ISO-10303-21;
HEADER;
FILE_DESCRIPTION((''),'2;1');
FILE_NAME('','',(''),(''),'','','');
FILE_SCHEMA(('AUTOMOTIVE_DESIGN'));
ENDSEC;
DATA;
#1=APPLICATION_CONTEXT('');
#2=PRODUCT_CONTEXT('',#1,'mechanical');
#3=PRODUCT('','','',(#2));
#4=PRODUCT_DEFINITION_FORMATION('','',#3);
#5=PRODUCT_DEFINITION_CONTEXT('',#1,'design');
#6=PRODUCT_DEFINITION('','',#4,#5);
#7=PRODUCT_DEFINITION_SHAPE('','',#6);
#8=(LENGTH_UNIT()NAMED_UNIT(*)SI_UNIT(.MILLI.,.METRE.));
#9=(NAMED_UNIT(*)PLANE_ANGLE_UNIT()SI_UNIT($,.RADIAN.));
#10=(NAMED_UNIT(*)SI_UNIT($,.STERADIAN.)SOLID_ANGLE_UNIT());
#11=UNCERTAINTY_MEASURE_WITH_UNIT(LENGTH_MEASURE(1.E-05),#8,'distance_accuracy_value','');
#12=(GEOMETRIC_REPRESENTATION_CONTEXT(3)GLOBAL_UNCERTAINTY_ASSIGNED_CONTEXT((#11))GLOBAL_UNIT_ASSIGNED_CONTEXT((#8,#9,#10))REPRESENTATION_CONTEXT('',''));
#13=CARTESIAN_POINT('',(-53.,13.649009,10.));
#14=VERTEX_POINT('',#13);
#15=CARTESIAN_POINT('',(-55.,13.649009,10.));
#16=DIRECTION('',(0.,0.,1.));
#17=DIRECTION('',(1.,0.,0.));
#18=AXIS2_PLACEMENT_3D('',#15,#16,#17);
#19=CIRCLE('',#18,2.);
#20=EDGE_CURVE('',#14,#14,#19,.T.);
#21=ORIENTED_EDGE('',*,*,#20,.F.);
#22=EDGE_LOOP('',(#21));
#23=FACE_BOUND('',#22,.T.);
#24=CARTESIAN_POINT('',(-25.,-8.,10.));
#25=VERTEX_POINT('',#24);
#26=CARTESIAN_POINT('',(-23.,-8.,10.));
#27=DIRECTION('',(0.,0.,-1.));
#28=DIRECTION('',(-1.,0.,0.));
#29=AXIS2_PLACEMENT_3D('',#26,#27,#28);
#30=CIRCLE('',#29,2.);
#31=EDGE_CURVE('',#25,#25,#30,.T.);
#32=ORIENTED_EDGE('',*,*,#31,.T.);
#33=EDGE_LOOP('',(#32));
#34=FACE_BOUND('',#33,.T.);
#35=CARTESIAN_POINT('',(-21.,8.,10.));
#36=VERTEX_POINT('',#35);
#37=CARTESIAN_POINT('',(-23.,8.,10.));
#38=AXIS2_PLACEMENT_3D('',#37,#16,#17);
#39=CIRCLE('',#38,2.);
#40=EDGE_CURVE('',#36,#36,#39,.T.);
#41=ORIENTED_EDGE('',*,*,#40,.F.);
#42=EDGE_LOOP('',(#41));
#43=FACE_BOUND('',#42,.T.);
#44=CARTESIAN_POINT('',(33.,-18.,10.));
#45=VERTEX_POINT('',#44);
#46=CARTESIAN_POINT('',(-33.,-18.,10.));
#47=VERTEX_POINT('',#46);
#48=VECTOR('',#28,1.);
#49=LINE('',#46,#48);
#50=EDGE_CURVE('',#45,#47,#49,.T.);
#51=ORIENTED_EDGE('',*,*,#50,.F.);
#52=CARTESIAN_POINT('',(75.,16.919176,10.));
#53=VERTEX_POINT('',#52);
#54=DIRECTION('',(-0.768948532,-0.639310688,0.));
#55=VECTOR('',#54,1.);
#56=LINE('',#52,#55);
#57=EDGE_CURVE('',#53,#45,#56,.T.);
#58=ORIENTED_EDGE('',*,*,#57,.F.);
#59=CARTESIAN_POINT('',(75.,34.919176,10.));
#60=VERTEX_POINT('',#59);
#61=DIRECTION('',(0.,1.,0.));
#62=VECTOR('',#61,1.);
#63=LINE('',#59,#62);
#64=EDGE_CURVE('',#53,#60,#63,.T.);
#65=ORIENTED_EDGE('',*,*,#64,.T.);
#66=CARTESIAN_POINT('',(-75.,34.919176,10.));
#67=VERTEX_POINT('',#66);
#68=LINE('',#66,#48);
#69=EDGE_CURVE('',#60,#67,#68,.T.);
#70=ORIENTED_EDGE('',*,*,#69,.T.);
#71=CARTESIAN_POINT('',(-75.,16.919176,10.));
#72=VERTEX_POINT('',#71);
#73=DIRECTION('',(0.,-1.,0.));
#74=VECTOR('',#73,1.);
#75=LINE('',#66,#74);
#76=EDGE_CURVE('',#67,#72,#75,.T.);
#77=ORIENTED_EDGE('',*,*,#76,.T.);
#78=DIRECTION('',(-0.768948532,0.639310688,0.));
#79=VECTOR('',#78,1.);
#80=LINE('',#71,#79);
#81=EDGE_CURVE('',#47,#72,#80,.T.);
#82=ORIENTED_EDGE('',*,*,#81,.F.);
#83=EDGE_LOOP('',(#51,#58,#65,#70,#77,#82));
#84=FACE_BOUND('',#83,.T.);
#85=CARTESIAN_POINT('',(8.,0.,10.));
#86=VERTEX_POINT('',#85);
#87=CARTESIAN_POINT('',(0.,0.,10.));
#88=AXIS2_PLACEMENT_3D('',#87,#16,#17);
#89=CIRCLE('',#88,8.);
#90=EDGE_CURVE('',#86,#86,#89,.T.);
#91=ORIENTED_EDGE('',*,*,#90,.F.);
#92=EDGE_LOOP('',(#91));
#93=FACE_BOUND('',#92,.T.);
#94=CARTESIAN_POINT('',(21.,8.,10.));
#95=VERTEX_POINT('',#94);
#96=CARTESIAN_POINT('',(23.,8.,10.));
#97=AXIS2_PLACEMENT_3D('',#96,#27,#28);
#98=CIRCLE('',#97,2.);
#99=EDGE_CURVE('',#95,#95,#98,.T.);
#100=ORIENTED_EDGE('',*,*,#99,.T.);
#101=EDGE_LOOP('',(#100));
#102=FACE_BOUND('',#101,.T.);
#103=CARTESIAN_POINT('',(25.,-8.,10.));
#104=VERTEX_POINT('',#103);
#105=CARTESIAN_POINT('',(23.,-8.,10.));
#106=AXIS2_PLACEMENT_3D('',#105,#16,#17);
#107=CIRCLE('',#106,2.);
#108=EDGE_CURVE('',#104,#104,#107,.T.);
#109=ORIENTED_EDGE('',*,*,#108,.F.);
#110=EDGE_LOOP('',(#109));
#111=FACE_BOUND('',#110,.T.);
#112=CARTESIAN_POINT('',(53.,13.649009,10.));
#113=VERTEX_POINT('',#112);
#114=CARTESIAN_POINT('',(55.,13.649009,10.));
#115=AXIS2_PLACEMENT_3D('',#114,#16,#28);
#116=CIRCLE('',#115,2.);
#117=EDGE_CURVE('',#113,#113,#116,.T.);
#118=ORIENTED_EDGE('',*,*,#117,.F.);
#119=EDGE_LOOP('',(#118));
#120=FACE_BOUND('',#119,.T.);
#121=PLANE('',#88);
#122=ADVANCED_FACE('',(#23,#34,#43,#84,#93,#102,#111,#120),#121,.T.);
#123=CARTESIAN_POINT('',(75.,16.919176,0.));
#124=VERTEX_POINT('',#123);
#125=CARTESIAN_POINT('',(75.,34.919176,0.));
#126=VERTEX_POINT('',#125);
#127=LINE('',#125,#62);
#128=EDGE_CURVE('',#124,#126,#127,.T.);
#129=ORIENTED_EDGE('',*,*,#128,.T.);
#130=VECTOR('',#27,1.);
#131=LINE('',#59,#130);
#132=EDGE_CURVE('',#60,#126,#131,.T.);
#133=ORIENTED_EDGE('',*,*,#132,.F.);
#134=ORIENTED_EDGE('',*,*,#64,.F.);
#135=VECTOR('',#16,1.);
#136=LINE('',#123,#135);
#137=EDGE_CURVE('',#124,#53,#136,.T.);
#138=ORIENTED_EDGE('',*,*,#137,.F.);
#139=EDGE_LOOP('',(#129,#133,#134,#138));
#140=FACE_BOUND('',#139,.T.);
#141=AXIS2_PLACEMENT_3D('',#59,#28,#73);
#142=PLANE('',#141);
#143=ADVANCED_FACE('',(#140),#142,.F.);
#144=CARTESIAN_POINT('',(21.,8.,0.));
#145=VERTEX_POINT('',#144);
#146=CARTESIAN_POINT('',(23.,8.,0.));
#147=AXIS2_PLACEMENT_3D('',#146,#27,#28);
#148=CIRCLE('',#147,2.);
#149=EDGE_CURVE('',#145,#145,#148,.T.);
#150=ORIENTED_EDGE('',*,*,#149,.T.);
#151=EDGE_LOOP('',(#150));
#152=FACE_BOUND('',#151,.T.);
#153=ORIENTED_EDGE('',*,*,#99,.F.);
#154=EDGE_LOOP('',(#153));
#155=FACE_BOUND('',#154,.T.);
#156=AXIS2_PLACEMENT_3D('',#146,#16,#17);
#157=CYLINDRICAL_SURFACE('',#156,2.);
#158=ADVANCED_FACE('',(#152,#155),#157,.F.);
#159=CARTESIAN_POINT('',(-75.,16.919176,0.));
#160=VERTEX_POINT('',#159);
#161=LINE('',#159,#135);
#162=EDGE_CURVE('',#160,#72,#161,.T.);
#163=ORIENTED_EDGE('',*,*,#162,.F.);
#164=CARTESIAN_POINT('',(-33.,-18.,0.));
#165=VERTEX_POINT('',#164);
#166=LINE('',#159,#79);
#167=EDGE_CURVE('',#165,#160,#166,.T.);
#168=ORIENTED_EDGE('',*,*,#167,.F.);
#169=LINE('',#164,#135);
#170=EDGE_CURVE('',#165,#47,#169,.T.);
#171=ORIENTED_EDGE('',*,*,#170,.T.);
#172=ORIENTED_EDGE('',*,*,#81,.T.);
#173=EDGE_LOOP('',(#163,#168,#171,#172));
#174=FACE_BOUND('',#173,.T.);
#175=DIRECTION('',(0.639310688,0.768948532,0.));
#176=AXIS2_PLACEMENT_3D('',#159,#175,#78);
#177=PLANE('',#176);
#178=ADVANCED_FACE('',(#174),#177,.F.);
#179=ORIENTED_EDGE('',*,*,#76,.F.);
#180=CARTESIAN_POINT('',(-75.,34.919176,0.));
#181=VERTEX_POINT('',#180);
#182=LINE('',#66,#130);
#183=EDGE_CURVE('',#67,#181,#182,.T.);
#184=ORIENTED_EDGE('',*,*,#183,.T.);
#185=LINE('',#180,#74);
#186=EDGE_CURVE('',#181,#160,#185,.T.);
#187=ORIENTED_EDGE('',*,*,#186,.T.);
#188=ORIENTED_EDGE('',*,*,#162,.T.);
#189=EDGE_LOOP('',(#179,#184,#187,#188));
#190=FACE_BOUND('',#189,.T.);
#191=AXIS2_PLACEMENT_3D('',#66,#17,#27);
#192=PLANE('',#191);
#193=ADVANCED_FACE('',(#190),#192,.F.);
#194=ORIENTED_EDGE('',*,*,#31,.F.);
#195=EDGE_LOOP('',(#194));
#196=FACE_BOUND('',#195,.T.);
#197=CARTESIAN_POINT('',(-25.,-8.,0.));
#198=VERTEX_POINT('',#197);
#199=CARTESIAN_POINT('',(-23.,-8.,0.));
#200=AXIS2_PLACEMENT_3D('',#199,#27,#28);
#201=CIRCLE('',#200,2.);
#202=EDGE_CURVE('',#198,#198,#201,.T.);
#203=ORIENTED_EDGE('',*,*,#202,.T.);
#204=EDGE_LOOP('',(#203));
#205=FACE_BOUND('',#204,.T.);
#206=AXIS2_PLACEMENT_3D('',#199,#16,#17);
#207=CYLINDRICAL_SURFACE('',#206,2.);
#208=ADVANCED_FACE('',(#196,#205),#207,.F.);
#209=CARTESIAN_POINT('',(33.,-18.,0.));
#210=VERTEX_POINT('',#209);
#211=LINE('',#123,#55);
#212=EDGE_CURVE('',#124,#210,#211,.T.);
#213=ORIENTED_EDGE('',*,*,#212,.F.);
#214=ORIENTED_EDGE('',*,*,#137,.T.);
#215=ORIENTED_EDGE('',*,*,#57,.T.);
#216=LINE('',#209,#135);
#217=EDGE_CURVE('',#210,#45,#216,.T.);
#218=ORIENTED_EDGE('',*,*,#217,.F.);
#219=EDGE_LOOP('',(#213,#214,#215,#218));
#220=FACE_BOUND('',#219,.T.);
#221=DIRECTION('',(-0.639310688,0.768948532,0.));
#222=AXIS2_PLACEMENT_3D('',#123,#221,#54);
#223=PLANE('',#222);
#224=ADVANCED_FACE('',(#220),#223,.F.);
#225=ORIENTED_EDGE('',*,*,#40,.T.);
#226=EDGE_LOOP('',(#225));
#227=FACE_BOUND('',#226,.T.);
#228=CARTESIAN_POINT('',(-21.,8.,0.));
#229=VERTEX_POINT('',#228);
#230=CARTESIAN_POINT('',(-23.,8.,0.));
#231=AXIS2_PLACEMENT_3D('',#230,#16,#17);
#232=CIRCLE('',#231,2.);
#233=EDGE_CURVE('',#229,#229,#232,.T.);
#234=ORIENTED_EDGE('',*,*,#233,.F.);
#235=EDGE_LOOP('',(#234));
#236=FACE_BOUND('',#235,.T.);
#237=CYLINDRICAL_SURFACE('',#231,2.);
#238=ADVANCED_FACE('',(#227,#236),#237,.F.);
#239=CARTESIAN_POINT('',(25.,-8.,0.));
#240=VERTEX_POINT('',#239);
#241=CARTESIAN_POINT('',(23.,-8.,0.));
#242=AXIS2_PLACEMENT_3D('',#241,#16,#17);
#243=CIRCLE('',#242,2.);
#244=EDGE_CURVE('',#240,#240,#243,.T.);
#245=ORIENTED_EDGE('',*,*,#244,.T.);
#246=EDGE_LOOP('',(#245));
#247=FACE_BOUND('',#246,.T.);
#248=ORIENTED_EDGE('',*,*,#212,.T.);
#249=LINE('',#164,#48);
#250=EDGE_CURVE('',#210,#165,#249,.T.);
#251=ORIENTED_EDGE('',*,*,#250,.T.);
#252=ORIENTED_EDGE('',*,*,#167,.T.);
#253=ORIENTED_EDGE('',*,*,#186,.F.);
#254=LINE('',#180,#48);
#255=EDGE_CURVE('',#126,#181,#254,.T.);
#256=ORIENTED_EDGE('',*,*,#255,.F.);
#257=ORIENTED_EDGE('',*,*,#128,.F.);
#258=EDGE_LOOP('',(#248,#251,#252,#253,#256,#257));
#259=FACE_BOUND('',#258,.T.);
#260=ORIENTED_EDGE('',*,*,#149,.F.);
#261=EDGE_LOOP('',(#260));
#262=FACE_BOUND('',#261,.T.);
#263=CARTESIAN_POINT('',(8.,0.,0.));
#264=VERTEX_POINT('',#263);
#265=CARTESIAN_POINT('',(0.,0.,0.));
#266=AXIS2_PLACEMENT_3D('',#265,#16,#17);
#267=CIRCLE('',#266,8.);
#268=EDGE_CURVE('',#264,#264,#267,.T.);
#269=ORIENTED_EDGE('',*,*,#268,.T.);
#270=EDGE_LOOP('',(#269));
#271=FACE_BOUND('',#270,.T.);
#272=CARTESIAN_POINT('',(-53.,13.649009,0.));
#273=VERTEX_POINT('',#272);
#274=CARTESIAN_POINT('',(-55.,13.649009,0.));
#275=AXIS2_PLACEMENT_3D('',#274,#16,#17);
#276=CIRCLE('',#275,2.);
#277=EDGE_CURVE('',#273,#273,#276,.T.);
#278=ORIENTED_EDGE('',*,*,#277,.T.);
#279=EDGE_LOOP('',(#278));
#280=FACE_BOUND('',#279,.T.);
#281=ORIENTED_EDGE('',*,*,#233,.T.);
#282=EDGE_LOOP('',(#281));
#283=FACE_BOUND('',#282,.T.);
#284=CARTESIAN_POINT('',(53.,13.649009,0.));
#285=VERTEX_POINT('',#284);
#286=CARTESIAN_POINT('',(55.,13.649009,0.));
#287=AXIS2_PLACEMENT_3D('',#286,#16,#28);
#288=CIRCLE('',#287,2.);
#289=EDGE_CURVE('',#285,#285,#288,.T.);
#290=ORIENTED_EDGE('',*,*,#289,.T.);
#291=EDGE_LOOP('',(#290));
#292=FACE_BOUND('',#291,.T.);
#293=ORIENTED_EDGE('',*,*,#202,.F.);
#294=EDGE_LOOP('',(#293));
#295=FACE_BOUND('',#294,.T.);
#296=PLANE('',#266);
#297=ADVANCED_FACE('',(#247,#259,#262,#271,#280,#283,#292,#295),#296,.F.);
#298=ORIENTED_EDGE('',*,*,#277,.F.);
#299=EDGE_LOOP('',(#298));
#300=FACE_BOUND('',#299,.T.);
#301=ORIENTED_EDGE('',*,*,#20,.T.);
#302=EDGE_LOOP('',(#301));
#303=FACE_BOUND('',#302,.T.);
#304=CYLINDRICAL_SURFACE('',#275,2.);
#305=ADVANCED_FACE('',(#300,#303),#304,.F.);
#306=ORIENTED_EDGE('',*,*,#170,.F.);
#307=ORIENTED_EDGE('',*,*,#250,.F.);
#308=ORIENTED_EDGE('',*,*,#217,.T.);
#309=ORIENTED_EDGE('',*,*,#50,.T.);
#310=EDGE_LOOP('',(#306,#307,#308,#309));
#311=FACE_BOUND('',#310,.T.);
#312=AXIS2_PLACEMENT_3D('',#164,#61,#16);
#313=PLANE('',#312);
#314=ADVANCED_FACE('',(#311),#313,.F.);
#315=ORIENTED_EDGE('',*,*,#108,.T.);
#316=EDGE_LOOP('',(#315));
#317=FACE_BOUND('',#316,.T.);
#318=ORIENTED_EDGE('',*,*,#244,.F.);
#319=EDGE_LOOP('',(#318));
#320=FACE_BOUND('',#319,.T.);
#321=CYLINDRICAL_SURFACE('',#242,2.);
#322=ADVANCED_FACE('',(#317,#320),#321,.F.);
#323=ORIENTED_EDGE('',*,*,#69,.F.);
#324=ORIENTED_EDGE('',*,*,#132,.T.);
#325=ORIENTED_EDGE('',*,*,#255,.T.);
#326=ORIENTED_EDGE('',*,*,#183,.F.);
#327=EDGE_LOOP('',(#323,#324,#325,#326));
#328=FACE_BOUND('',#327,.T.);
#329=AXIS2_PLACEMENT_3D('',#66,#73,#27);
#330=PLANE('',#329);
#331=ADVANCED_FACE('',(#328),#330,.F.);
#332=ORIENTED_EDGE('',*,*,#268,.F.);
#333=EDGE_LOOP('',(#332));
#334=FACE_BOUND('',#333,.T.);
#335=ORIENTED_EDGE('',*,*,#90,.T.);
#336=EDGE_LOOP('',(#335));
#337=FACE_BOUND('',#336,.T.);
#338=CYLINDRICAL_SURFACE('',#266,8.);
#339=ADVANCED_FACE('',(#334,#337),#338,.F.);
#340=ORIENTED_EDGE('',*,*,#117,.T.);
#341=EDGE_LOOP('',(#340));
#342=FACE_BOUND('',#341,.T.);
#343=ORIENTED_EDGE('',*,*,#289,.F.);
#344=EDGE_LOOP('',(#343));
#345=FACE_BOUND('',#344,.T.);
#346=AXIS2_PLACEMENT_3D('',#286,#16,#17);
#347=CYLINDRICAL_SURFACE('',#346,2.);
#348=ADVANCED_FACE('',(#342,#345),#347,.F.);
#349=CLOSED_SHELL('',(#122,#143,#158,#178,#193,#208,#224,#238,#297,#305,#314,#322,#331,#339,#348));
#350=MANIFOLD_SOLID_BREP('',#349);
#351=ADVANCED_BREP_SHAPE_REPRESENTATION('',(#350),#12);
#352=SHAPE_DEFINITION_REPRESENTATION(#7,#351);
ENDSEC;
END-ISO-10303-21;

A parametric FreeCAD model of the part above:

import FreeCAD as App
import Part
import Sketcher

V = App.Vector


def add_polygon(sketch, points):
    """Adds a closed chain of lines whose ends are joined by coincident constraints."""
    first, n = sketch.GeometryCount, len(points)
    for a, b in zip(points, points[1:] + points[:1]):
        sketch.addGeometry(Part.LineSegment(App.Vector(*a, 0), App.Vector(*b, 0)), False)
    for i in range(n):
        sketch.addConstraint(Sketcher.Constraint("Coincident", first + i, 2, first + (i + 1) % n, 1))

doc = App.newDocument("Part")
body = doc.addObject("PartDesign::Body", "Body")

sketch1 = body.newObject("Sketcher::SketchObject", "Sketch")
sketch1.AttachmentSupport = (doc.getObject("XY_Plane"), [""])
sketch1.MapMode = "FlatFace"
add_polygon(sketch1, [(-75, 35), (-75, -35), (75, -35), (75, 35)])
sketch1.addConstraint([
    Sketcher.Constraint("Vertical", 0),
    Sketcher.Constraint("Horizontal", 1),
    Sketcher.Constraint("Vertical", 2),
    Sketcher.Constraint("Horizontal", 3),
    Sketcher.Constraint("DistanceX", 1, 1, 1, 2, 150.0),
    Sketcher.Constraint("DistanceY", 0, 2, 0, 1, 70.0),
    Sketcher.Constraint("DistanceX", 0, 2, -1, 1, 75.0),
    Sketcher.Constraint("DistanceY", 0, 2, -1, 1, 35.080824),
])
pad1 = body.newObject("PartDesign::Pad", "Pad")
pad1.Profile = sketch1
pad1.Length = 10

sketch2 = body.newObject("Sketcher::SketchObject", "Sketch001")
sketch2.AttachmentSupport = (doc.getObject("XY_Plane"), [""])
sketch2.MapMode = "FlatFace"
sketch2.AttachmentOffset = App.Placement(V(0, 0, 10), App.Rotation())
sketch2.addGeometry(Part.Circle(V(0, 0, 0), V(0, 0, 1), 8), False)
sketch2.addConstraint([
    Sketcher.Constraint("Coincident", 0, 3, -1, 1),
    Sketcher.Constraint("Diameter", 0, 16.0),
])
pocket1 = body.newObject("PartDesign::Pocket", "Pocket")
pocket1.Profile = sketch2
pocket1.Type = "ThroughAll"

sketch3 = body.newObject("Sketcher::SketchObject", "Sketch002")
sketch3.AttachmentSupport = (doc.getObject("XY_Plane"), [""])
sketch3.MapMode = "FlatFace"
sketch3.AttachmentOffset = App.Placement(V(0, 0, 10), App.Rotation())
sketch3.addGeometry([
    Part.Circle(V(-23, 8, 0), V(0, 0, 1), 2),
    Part.Circle(V(-23, -8, 0), V(0, 0, 1), 2),
    Part.Circle(V(23, -8, 0), V(0, 0, 1), 2),
    Part.Circle(V(23, 8, 0), V(0, 0, 1), 2),
], False)
sketch3.addConstraint([
    Sketcher.Constraint("Equal", 0, 1),
    Sketcher.Constraint("Equal", 1, 2),
    Sketcher.Constraint("Equal", 2, 3),
    Sketcher.Constraint("Symmetric", 0, 3, 2, 3, -1, 1),
    Sketcher.Constraint("Symmetric", 1, 3, 3, 3, -1, 1),
    Sketcher.Constraint("Symmetric", 1, 3, 2, 3, -2),
    Sketcher.Constraint("Diameter", 0, 4.0),
    Sketcher.Constraint("DistanceX", 0, 3, -1, 1, 23.0),
    Sketcher.Constraint("DistanceY", -1, 1, 0, 3, 8.0),
])
pocket2 = body.newObject("PartDesign::Pocket", "Pocket001")
pocket2.Profile = sketch3
pocket2.Type = "ThroughAll"

sketch4 = body.newObject("Sketcher::SketchObject", "Sketch003")
sketch4.AttachmentSupport = (doc.getObject("XY_Plane"), [""])
sketch4.MapMode = "FlatFace"
sketch4.AttachmentOffset = App.Placement(V(0, 0, 10), App.Rotation())
sketch4.addGeometry([
    Part.Circle(V(-55, 13.6, 0), V(0, 0, 1), 2),
    Part.Circle(V(-65, -25.1, 0), V(0, 0, 1), 2),
    Part.Circle(V(65, -25.1, 0), V(0, 0, 1), 2),
    Part.Circle(V(55, 13.6, 0), V(0, 0, 1), 2),
], False)
sketch4.addConstraint([
    Sketcher.Constraint("Equal", 0, 1),
    Sketcher.Constraint("Equal", 1, 2),
    Sketcher.Constraint("Equal", 2, 3),
    Sketcher.Constraint("Symmetric", 1, 3, 2, 3, -2),
    Sketcher.Constraint("Symmetric", 0, 3, 3, 3, -2),
    Sketcher.Constraint("Diameter", 0, 4.0),
    Sketcher.Constraint("DistanceX", 0, 3, -1, 1, 55.0),
    Sketcher.Constraint("DistanceX", 1, 3, -1, 1, 65.0),
    Sketcher.Constraint("DistanceY", -1, 1, 0, 3, 13.649009),
    Sketcher.Constraint("DistanceY", 1, 3, -1, 1, 25.080824),
])
pocket3 = body.newObject("PartDesign::Pocket", "Pocket002")
pocket3.Profile = sketch4
pocket3.Type = "ThroughAll"

sketch5 = body.newObject("Sketcher::SketchObject", "Sketch004")
sketch5.AttachmentSupport = (doc.getObject("XY_Plane"), [""])
sketch5.MapMode = "FlatFace"
sketch5.AttachmentOffset = App.Placement(V(0, 0, 10), App.Rotation())
add_polygon(sketch5, [(-33, -18), (-75, 17), (-75, -35), (75, -35), (75, 17), (33, -18)])
sketch5.addConstraint([
    Sketcher.Constraint("Vertical", 1),
    Sketcher.Constraint("Horizontal", 2),
    Sketcher.Constraint("Vertical", 3),
    Sketcher.Constraint("Horizontal", 5),
    Sketcher.Constraint("Symmetric", 0, 2, 3, 2, -2),
    Sketcher.Constraint("Equal", 0, 4),
    Sketcher.Constraint("DistanceX", 2, 1, 2, 2, 150.0),
    Sketcher.Constraint("DistanceX", 5, 2, 5, 1, 66.0),
    Sketcher.Constraint("DistanceY", 1, 2, 1, 1, 52.0),
    Sketcher.Constraint("DistanceY", 4, 2, -1, 1, 18.0),
    Sketcher.Constraint("Distance", 0, 54.620041),
])
pocket4 = body.newObject("PartDesign::Pocket", "Pocket003")
pocket4.Profile = sketch5
pocket4.Type = "ThroughAll"

doc.recompute()
